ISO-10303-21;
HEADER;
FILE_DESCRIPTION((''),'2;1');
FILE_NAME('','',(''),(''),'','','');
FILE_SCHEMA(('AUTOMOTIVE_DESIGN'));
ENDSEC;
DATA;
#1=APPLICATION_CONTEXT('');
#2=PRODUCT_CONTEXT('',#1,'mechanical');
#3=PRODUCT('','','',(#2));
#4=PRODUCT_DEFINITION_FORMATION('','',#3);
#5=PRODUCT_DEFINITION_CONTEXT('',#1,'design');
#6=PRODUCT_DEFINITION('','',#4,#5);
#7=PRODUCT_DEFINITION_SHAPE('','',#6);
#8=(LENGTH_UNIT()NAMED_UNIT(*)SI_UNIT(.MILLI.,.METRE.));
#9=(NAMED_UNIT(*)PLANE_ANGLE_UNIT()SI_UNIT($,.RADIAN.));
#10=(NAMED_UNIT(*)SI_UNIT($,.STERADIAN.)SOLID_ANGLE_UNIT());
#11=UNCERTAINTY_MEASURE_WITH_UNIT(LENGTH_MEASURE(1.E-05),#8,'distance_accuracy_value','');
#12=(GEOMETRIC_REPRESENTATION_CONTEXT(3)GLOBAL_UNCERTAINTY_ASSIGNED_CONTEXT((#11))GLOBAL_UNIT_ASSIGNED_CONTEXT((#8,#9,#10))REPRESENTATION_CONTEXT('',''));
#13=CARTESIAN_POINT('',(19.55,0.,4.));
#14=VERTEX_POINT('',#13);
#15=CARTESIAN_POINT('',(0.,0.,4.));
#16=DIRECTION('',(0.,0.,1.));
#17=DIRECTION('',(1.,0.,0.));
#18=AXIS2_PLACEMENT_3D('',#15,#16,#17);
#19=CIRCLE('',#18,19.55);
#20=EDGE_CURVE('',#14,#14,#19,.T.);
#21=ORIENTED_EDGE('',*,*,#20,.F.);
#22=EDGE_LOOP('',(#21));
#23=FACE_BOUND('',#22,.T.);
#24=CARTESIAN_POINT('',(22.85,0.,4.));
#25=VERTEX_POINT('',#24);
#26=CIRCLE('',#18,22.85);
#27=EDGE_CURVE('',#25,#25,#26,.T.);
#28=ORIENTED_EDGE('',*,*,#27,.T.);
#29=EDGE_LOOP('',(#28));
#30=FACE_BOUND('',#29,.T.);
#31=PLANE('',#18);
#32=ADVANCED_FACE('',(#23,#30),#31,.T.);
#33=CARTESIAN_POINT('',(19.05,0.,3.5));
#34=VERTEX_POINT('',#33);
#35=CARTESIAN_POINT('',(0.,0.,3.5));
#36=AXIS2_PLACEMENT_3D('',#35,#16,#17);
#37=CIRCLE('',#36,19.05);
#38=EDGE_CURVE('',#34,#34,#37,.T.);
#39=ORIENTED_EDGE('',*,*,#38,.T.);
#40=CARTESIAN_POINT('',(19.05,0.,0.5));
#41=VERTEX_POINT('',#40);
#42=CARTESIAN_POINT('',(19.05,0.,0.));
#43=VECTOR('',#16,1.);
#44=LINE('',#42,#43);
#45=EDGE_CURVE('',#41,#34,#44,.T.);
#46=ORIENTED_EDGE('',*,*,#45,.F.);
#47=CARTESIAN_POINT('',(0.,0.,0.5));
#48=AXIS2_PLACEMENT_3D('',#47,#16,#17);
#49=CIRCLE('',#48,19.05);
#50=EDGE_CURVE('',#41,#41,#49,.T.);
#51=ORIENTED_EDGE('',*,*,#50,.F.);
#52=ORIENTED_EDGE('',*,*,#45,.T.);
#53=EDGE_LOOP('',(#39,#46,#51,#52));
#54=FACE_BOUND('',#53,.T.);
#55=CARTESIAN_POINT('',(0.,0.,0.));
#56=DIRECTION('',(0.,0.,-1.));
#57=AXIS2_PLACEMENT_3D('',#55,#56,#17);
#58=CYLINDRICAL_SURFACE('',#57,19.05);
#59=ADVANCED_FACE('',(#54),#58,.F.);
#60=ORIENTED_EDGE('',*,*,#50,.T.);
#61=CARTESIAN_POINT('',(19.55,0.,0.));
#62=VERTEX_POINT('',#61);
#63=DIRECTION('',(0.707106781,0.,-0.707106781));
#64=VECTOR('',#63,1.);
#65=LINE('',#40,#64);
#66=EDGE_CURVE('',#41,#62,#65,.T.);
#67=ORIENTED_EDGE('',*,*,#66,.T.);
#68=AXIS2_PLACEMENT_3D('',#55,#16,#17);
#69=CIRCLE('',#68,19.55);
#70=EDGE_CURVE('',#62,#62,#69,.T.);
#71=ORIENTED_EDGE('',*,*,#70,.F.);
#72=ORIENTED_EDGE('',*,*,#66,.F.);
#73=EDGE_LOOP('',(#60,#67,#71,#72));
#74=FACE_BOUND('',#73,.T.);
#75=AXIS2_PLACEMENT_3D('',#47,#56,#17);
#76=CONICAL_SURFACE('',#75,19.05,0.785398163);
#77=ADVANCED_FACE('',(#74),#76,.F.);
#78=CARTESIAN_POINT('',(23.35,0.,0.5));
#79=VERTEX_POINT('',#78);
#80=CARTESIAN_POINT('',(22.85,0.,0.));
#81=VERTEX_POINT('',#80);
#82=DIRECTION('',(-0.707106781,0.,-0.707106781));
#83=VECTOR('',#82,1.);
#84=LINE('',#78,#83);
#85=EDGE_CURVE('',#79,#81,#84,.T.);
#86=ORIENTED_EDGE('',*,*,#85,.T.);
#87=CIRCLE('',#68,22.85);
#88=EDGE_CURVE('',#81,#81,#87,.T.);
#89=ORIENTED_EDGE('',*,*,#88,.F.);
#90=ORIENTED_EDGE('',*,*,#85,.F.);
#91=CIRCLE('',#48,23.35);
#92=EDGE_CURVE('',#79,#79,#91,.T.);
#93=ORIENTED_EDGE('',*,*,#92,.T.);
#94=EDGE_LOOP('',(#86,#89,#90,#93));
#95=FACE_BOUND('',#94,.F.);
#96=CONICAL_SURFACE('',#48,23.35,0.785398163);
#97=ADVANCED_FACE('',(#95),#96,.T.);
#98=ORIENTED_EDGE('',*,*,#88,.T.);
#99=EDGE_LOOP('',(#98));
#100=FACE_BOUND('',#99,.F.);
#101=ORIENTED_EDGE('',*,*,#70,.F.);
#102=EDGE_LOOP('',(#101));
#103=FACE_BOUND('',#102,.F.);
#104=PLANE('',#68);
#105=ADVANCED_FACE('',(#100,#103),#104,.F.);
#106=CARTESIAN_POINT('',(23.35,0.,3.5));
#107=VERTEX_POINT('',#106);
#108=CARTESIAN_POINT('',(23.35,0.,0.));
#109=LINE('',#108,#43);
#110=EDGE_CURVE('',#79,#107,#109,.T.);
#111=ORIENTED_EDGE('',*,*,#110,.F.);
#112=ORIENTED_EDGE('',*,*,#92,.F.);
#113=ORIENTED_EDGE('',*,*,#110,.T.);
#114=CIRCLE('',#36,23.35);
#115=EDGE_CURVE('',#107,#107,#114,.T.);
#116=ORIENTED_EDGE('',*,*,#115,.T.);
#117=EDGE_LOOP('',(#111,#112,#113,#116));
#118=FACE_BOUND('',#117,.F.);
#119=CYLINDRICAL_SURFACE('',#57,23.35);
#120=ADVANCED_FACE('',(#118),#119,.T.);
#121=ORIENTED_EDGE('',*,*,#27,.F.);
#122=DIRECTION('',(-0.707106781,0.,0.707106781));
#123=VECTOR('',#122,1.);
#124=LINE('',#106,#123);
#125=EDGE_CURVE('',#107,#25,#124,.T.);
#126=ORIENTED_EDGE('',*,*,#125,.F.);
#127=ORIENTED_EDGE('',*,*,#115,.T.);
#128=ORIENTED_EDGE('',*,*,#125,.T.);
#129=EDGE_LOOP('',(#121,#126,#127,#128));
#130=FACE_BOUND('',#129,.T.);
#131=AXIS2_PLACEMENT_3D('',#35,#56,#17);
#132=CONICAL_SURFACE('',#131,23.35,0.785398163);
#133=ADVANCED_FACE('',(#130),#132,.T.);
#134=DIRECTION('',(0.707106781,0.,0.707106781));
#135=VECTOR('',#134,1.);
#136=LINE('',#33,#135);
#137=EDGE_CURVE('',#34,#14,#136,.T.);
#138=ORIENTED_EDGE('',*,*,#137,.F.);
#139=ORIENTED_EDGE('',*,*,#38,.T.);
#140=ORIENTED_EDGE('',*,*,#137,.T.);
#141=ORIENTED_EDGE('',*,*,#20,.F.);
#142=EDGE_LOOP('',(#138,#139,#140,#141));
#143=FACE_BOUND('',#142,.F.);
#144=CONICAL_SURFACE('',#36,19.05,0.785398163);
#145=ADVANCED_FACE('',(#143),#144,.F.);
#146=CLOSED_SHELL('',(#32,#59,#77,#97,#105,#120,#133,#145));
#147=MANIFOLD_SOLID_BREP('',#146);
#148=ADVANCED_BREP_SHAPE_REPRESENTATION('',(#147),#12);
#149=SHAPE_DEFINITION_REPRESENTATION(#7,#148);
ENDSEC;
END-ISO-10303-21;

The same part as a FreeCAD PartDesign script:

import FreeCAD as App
import Part
import Sketcher
Q = App.Units.Quantity


def edges_at(feature, points):
    """Names of the edges that pass closest to the given points."""
    edges = feature.Shape.Edges
    near = lambda p: min(range(len(edges)), key=lambda i: edges[i].distToShape(Part.Vertex(*p))[0])
    return sorted({f"Edge{near(p) + 1}" for p in points})

doc = App.newDocument("Part")
body = doc.addObject("PartDesign::Body", "Body")

# Sketch on XY plane
sketch1 = doc.addObject("Sketcher::SketchObject", "Sketch")
body.addObject(sketch1)
sketch1.AttachmentSupport = (doc.XY_Plane, [""])
sketch1.MapMode = "FlatFace"
sketch1.addGeometry(Part.Circle(App.Vector(0, 0, 0), App.Vector(0, 0, 1), 23.35), False)
sketch1.addGeometry(Part.Circle(App.Vector(0, 0, 0), App.Vector(0, 0, 1), 19.05), False)
sketch1.addConstraint(Sketcher.Constraint("Coincident", 0, 3, -1, 1))
sketch1.addConstraint(Sketcher.Constraint("Coincident", 1, 3, -1, 1))
sketch1.addConstraint(Sketcher.Constraint("Diameter", 0, Q("46.7 mm")))
sketch1.addConstraint(Sketcher.Constraint("Diameter", 1, Q("38.1 mm")))
pad1 = doc.addObject("PartDesign::Pad", "Pad")
body.addObject(pad1)
pad1.Profile = sketch1
pad1.Length = 4
doc.recompute()

chamfer = doc.addObject("PartDesign::Chamfer", "Chamfer")
body.addObject(chamfer)
chamfer.Base = (pad1, edges_at(pad1, [
    (-19.05, 0, 4),
    (-19.05, 0, 0),
    (-23.35, 0, 4),
    (-23.35, 0, 0),
]))
chamfer.Size = 0.5

doc.recompute()
